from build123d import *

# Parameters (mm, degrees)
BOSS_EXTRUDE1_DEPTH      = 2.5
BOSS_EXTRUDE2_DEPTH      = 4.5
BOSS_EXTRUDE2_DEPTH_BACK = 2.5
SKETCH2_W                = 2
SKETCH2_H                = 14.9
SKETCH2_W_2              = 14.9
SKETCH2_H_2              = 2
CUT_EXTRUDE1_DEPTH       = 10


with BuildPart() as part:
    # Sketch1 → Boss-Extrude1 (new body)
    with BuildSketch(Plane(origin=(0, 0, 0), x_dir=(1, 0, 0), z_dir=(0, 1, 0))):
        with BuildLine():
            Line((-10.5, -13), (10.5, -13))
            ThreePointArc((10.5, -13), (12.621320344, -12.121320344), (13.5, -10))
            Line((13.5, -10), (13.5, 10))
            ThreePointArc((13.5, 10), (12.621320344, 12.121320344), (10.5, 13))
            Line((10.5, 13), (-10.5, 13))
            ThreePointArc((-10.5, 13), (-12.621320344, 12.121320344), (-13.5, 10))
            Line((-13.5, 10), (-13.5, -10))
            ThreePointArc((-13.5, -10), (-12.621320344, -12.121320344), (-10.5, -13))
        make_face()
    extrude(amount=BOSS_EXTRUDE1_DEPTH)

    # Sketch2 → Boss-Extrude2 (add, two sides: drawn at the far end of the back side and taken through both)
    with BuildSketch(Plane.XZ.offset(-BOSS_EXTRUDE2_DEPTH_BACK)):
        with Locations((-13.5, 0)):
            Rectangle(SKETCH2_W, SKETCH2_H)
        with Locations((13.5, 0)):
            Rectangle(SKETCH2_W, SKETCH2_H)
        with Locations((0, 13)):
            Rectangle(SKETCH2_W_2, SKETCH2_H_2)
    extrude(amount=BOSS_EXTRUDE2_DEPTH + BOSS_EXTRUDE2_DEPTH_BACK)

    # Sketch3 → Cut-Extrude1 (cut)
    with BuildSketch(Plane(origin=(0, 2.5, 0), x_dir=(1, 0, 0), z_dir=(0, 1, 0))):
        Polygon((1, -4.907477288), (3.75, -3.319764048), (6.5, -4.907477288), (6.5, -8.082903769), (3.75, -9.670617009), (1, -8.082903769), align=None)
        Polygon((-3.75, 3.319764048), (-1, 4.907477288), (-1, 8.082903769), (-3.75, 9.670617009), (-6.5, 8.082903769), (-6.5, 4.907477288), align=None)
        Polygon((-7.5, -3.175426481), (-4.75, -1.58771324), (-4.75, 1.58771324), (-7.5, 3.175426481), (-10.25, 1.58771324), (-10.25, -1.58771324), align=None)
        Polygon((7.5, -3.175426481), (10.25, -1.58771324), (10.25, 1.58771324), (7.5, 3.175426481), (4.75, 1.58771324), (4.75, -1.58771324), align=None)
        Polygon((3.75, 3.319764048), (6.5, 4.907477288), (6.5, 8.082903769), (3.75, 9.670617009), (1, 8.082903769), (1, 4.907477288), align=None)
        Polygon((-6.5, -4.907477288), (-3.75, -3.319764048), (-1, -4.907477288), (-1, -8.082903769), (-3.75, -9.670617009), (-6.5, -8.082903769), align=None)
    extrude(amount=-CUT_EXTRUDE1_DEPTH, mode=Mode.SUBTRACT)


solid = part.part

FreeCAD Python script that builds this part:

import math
import FreeCAD as App
import Part
import Sketcher
Q = App.Units.Quantity

doc = App.newDocument("Part")
body = doc.addObject("PartDesign::Body", "Body")

# Sketch on XZ plane
sketch1 = body.newObject("Sketcher::SketchObject", "Sketch")
sketch1.AttachmentSupport = (doc.getObject("XZ_Plane"), [""])
sketch1.MapMode = "FlatFace"
sketch1.addGeometry(Part.LineSegment(App.Vector(-10.5, 13, 0), App.Vector(10.5, 13, 0)), False)
sketch1.addGeometry(Part.ArcOfCircle(Part.Circle(App.Vector(10.5, 10, 0), App.Vector(0, 0, 1), 3), math.radians(0), math.radians(90)), False)
sketch1.addGeometry(Part.LineSegment(App.Vector(13.5, 10, 0), App.Vector(13.5, -10, 0)), False)
sketch1.addGeometry(Part.ArcOfCircle(Part.Circle(App.Vector(10.5, -10, 0), App.Vector(0, 0, 1), 3), math.radians(-90), math.radians(0)), False)
sketch1.addGeometry(Part.LineSegment(App.Vector(10.5, -13, 0), App.Vector(-10.5, -13, 0)), False)
sketch1.addGeometry(Part.ArcOfCircle(Part.Circle(App.Vector(-10.5, -10, 0), App.Vector(0, 0, 1), 3), math.radians(180), math.radians(270)), False)
sketch1.addGeometry(Part.LineSegment(App.Vector(-13.5, -10, 0), App.Vector(-13.5, 10, 0)), False)
sketch1.addGeometry(Part.ArcOfCircle(Part.Circle(App.Vector(-10.5, 10, 0), App.Vector(0, 0, 1), 3), math.radians(90), math.radians(180)), False)
sketch1.addConstraint(Sketcher.Constraint("Tangent", 0, 2, 1, 2))
sketch1.addConstraint(Sketcher.Constraint("Tangent", 1, 1, 2, 1))
sketch1.addConstraint(Sketcher.Constraint("Tangent", 2, 2, 3, 2))
sketch1.addConstraint(Sketcher.Constraint("Tangent", 3, 1, 4, 1))
sketch1.addConstraint(Sketcher.Constraint("Tangent", 4, 2, 5, 2))
sketch1.addConstraint(Sketcher.Constraint("Tangent", 5, 1, 6, 1))
sketch1.addConstraint(Sketcher.Constraint("Tangent", 6, 2, 7, 2))
sketch1.addConstraint(Sketcher.Constraint("Tangent", 7, 1, 0, 1))
sketch1.addConstraint(Sketcher.Constraint("Horizontal", 0))
sketch1.addConstraint(Sketcher.Constraint("Vertical", 2))
sketch1.addConstraint(Sketcher.Constraint("Horizontal", 4))
sketch1.addConstraint(Sketcher.Constraint("Vertical", 6))
sketch1.addConstraint(Sketcher.Constraint("Equal", 1, 3))
sketch1.addConstraint(Sketcher.Constraint("Equal", 3, 5))
sketch1.addConstraint(Sketcher.Constraint("Equal", 5, 7))
sketch1.addConstraint(Sketcher.Constraint("Symmetric", 1, 3, 5, 3, -1, 1))
sketch1.addConstraint(Sketcher.Constraint("Radius", 1, Q("3 mm")))
sketch1.addConstraint(Sketcher.Constraint("DistanceX", 0, 1, 0, 2, Q("21 mm")))
sketch1.addConstraint(Sketcher.Constraint("DistanceY", 2, 2, 2, 1, Q("20 mm")))
pad1 = body.newObject("PartDesign::Pad", "Pad")
pad1.Profile = sketch1
pad1.Length = 2.5
pad1.Reversed = True

# Sketch on XZ plane
sketch2 = body.newObject("Sketcher::SketchObject", "Sketch001")
sketch2.AttachmentSupport = (doc.getObject("XZ_Plane"), [""])
sketch2.MapMode = "FlatFace"
sketch2.addGeometry(Part.LineSegment(App.Vector(-14.5, 7.45, 0), App.Vector(-14.5, -7.45, 0)), False)
sketch2.addGeometry(Part.LineSegment(App.Vector(-14.5, -7.45, 0), App.Vector(-12.5, -7.45, 0)), False)
sketch2.addGeometry(Part.LineSegment(App.Vector(-12.5, -7.45, 0), App.Vector(-12.5, 7.45, 0)), False)
sketch2.addGeometry(Part.LineSegment(App.Vector(-12.5, 7.45, 0), App.Vector(-14.5, 7.45, 0)), False)
sketch2.addGeometry(Part.LineSegment(App.Vector(12.5, 7.45, 0), App.Vector(12.5, -7.45, 0)), False)
sketch2.addGeometry(Part.LineSegment(App.Vector(12.5, -7.45, 0), App.Vector(14.5, -7.45, 0)), False)
sketch2.addGeometry(Part.LineSegment(App.Vector(14.5, -7.45, 0), App.Vector(14.5, 7.45, 0)), False)
sketch2.addGeometry(Part.LineSegment(App.Vector(14.5, 7.45, 0), App.Vector(12.5, 7.45, 0)), False)
sketch2.addGeometry(Part.LineSegment(App.Vector(-7.45, 14, 0), App.Vector(-7.45, 12, 0)), False)
sketch2.addGeometry(Part.LineSegment(App.Vector(-7.45, 12, 0), App.Vector(7.45, 12, 0)), False)
sketch2.addGeometry(Part.LineSegment(App.Vector(7.45, 12, 0), App.Vector(7.45, 14, 0)), False)
sketch2.addGeometry(Part.LineSegment(App.Vector(7.45, 14, 0), App.Vector(-7.45, 14, 0)), False)
sketch2.addConstraint(Sketcher.Constraint("Coincident", 0, 2, 1, 1))
sketch2.addConstraint(Sketcher.Constraint("Coincident", 1, 2, 2, 1))
sketch2.addConstraint(Sketcher.Constraint("Coincident", 2, 2, 3, 1))
sketch2.addConstraint(Sketcher.Constraint("Coincident", 3, 2, 0, 1))
sketch2.addConstraint(Sketcher.Constraint("Coincident", 4, 2, 5, 1))
sketch2.addConstraint(Sketcher.Constraint("Coincident", 5, 2, 6, 1))
sketch2.addConstraint(Sketcher.Constraint("Coincident", 6, 2, 7, 1))
sketch2.addConstraint(Sketcher.Constraint("Coincident", 7, 2, 4, 1))
sketch2.addConstraint(Sketcher.Constraint("Coincident", 8, 2, 9, 1))
sketch2.addConstraint(Sketcher.Constraint("Coincident", 9, 2, 10, 1))
sketch2.addConstraint(Sketcher.Constraint("Coincident", 10, 2, 11, 1))
sketch2.addConstraint(Sketcher.Constraint("Coincident", 11, 2, 8, 1))
sketch2.addConstraint(Sketcher.Constraint("Vertical", 0))
sketch2.addConstraint(Sketcher.Constraint("Horizontal", 1))
sketch2.addConstraint(Sketcher.Constraint("Vertical", 2))
sketch2.addConstraint(Sketcher.Constraint("Horizontal", 3))
sketch2.addConstraint(Sketcher.Constraint("Vertical", 4))
sketch2.addConstraint(Sketcher.Constraint("Horizontal", 5))
sketch2.addConstraint(Sketcher.Constraint("Vertical", 6))
sketch2.addConstraint(Sketcher.Constraint("Horizontal", 7))
sketch2.addConstraint(Sketcher.Constraint("Vertical", 8))
sketch2.addConstraint(Sketcher.Constraint("Horizontal", 9))
sketch2.addConstraint(Sketcher.Constraint("Vertical", 10))
sketch2.addConstraint(Sketcher.Constraint("Horizontal", 11))
sketch2.addConstraint(Sketcher.Constraint("Symmetric", 2, 2, 4, 2, -1, 1))
sketch2.addConstraint(Sketcher.Constraint("Symmetric", 0, 2, 6, 2, -1, 1))
sketch2.addConstraint(Sketcher.Constraint("Horizontal", 1, 2, 4, 2))
sketch2.addConstraint(Sketcher.Constraint("Equal", 11, 0))
sketch2.addConstraint(Sketcher.Constraint("Equal", 7, 8))
sketch2.addConstraint(Sketcher.Constraint("DistanceX", 1, 1, 1, 2, Q("2 mm")))
sketch2.addConstraint(Sketcher.Constraint("DistanceX", 9, 1, 9, 2, Q("14.9 mm")))
sketch2.addConstraint(Sketcher.Constraint("DistanceY", -1, 1, 8, 2, Q("12 mm")))
sketch2.addConstraint(Sketcher.Constraint("DistanceX", 1, 2, 4, 2, Q("25 mm")))
sketch2.addConstraint(Sketcher.Constraint("DistanceX", 8, 2, -1, 1, Q("7.45 mm")))
pad2 = body.newObject("PartDesign::Pad", "Pad001")
pad2.Profile = sketch2
pad2.Type = "TwoLengths"
pad2.Length = 4.5
pad2.Length2 = 2.5

# Sketch on XZ plane
sketch3 = body.newObject("Sketcher::SketchObject", "Sketch002")
sketch3.AttachmentSupport = (doc.getObject("XZ_Plane"), [""])
sketch3.MapMode = "FlatFace"
sketch3.AttachmentOffset = App.Placement(App.Vector(0, 0, -2.5), App.Rotation())
sketch3.addGeometry(Part.LineSegment(App.Vector(3.75, 3.319764, 0), App.Vector(1, 4.907477, 0)), False)
sketch3.addGeometry(Part.LineSegment(App.Vector(1, 4.907477, 0), App.Vector(1, 8.082904, 0)), False)
sketch3.addGeometry(Part.LineSegment(App.Vector(1, 8.082904, 0), App.Vector(3.75, 9.670617, 0)), False)
sketch3.addGeometry(Part.LineSegment(App.Vector(3.75, 9.670617, 0), App.Vector(6.5, 8.082904, 0)), False)
sketch3.addGeometry(Part.LineSegment(App.Vector(6.5, 8.082904, 0), App.Vector(6.5, 4.907477, 0)), False)
sketch3.addGeometry(Part.LineSegment(App.Vector(6.5, 4.907477, 0), App.Vector(3.75, 3.319764, 0)), False)
sketch3.addGeometry(Part.LineSegment(App.Vector(-3.75, -3.319764, 0), App.Vector(-1, -4.907477, 0)), False)
sketch3.addGeometry(Part.LineSegment(App.Vector(-1, -4.907477, 0), App.Vector(-1, -8.082904, 0)), False)
sketch3.addGeometry(Part.LineSegment(App.Vector(-1, -8.082904, 0), App.Vector(-3.75, -9.670617, 0)), False)
sketch3.addGeometry(Part.LineSegment(App.Vector(-3.75, -9.670617, 0), App.Vector(-6.5, -8.082904, 0)), False)
sketch3.addGeometry(Part.LineSegment(App.Vector(-6.5, -8.082904, 0), App.Vector(-6.5, -4.907477, 0)), False)
sketch3.addGeometry(Part.LineSegment(App.Vector(-6.5, -4.907477, 0), App.Vector(-3.75, -3.319764, 0)), False)
sketch3.addGeometry(Part.LineSegment(App.Vector(-7.5, 3.175426, 0), App.Vector(-4.75, 1.587713, 0)), False)
sketch3.addGeometry(Part.LineSegment(App.Vector(-4.75, 1.587713, 0), App.Vector(-4.75, -1.587713, 0)), False)
sketch3.addGeometry(Part.LineSegment(App.Vector(-4.75, -1.587713, 0), App.Vector(-7.5, -3.175426, 0)), False)
sketch3.addGeometry(Part.LineSegment(App.Vector(-7.5, -3.175426, 0), App.Vector(-10.25, -1.587713, 0)), False)
sketch3.addGeometry(Part.LineSegment(App.Vector(-10.25, -1.587713, 0), App.Vector(-10.25, 1.587713, 0)), False)
sketch3.addGeometry(Part.LineSegment(App.Vector(-10.25, 1.587713, 0), App.Vector(-7.5, 3.175426, 0)), False)
sketch3.addGeometry(Part.LineSegment(App.Vector(7.5, 3.175426, 0), App.Vector(10.25, 1.587713, 0)), False)
sketch3.addGeometry(Part.LineSegment(App.Vector(10.25, 1.587713, 0), App.Vector(10.25, -1.587713, 0)), False)
sketch3.addGeometry(Part.LineSegment(App.Vector(10.25, -1.587713, 0), App.Vector(7.5, -3.175426, 0)), False)
sketch3.addGeometry(Part.LineSegment(App.Vector(7.5, -3.175426, 0), App.Vector(4.75, -1.587713, 0)), False)
sketch3.addGeometry(Part.LineSegment(App.Vector(4.75, -1.587713, 0), App.Vector(4.75, 1.587713, 0)), False)
sketch3.addGeometry(Part.LineSegment(App.Vector(4.75, 1.587713, 0), App.Vector(7.5, 3.175426, 0)), False)
sketch3.addGeometry(Part.LineSegment(App.Vector(3.75, -3.319764, 0), App.Vector(6.5, -4.907477, 0)), False)
sketch3.addGeometry(Part.LineSegment(App.Vector(6.5, -4.907477, 0), App.Vector(6.5, -8.082904, 0)), False)
sketch3.addGeometry(Part.LineSegment(App.Vector(6.5, -8.082904, 0), App.Vector(3.75, -9.670617, 0)), False)
sketch3.addGeometry(Part.LineSegment(App.Vector(3.75, -9.670617, 0), App.Vector(1, -8.082904, 0)), False)
sketch3.addGeometry(Part.LineSegment(App.Vector(1, -8.082904, 0), App.Vector(1, -4.907477, 0)), False)
sketch3.addGeometry(Part.LineSegment(App.Vector(1, -4.907477, 0), App.Vector(3.75, -3.319764, 0)), False)
sketch3.addGeometry(Part.LineSegment(App.Vector(-3.75, 3.319764, 0), App.Vector(-6.5, 4.907477, 0)), False)
sketch3.addGeometry(Part.LineSegment(App.Vector(-6.5, 4.907477, 0), App.Vector(-6.5, 8.082904, 0)), False)
sketch3.addGeometry(Part.LineSegment(App.Vector(-6.5, 8.082904, 0), App.Vector(-3.75, 9.670617, 0)), False)
sketch3.addGeometry(Part.LineSegment(App.Vector(-3.75, 9.670617, 0), App.Vector(-1, 8.082904, 0)), False)
sketch3.addGeometry(Part.LineSegment(App.Vector(-1, 8.082904, 0), App.Vector(-1, 4.907477, 0)), False)
sketch3.addGeometry(Part.LineSegment(App.Vector(-1, 4.907477, 0), App.Vector(-3.75, 3.319764, 0)), False)
sketch3.addConstraint(Sketcher.Constraint("Coincident", 0, 2, 1, 1))
sketch3.addConstraint(Sketcher.Constraint("Coincident", 1, 2, 2, 1))
sketch3.addConstraint(Sketcher.Constraint("Coincident", 2, 2, 3, 1))
sketch3.addConstraint(Sketcher.Constraint("Coincident", 3, 2, 4, 1))
sketch3.addConstraint(Sketcher.Constraint("Coincident", 4, 2, 5, 1))
sketch3.addConstraint(Sketcher.Constraint("Coincident", 5, 2, 0, 1))
sketch3.addConstraint(Sketcher.Constraint("Coincident", 6, 2, 7, 1))
sketch3.addConstraint(Sketcher.Constraint("Coincident", 7, 2, 8, 1))
sketch3.addConstraint(Sketcher.Constraint("Coincident", 8, 2, 9, 1))
sketch3.addConstraint(Sketcher.Constraint("Coincident", 9, 2, 10, 1))
sketch3.addConstraint(Sketcher.Constraint("Coincident", 10, 2, 11, 1))
sketch3.addConstraint(Sketcher.Constraint("Coincident", 11, 2, 6, 1))
sketch3.addConstraint(Sketcher.Constraint("Coincident", 12, 2, 13, 1))
sketch3.addConstraint(Sketcher.Constraint("Coincident", 13, 2, 14, 1))
sketch3.addConstraint(Sketcher.Constraint("Coincident", 14, 2, 15, 1))
sketch3.addConstraint(Sketcher.Constraint("Coincident", 15, 2, 16, 1))
sketch3.addConstraint(Sketcher.Constraint("Coincident", 16, 2, 17, 1))
sketch3.addConstraint(Sketcher.Constraint("Coincident", 17, 2, 12, 1))
sketch3.addConstraint(Sketcher.Constraint("Coincident", 18, 2, 19, 1))
sketch3.addConstraint(Sketcher.Constraint("Coincident", 19, 2, 20, 1))
sketch3.addConstraint(Sketcher.Constraint("Coincident", 20, 2, 21, 1))
sketch3.addConstraint(Sketcher.Constraint("Coincident", 21, 2, 22, 1))
sketch3.addConstraint(Sketcher.Constraint("Coincident", 22, 2, 23, 1))
sketch3.addConstraint(Sketcher.Constraint("Coincident", 23, 2, 18, 1))
sketch3.addConstraint(Sketcher.Constraint("Coincident", 24, 2, 25, 1))
sketch3.addConstraint(Sketcher.Constraint("Coincident", 25, 2, 26, 1))
sketch3.addConstraint(Sketcher.Constraint("Coincident", 26, 2, 27, 1))
sketch3.addConstraint(Sketcher.Constraint("Coincident", 27, 2, 28, 1))
sketch3.addConstraint(Sketcher.Constraint("Coincident", 28, 2, 29, 1))
sketch3.addConstraint(Sketcher.Constraint("Coincident", 29, 2, 24, 1))
sketch3.addConstraint(Sketcher.Constraint("Coincident", 30, 2, 31, 1))
sketch3.addConstraint(Sketcher.Constraint("Coincident", 31, 2, 32, 1))
sketch3.addConstraint(Sketcher.Constraint("Coincident", 32, 2, 33, 1))
sketch3.addConstraint(Sketcher.Constraint("Coincident", 33, 2, 34, 1))
sketch3.addConstraint(Sketcher.Constraint("Coincident", 34, 2, 35, 1))
sketch3.addConstraint(Sketcher.Constraint("Coincident", 35, 2, 30, 1))
sketch3.addConstraint(Sketcher.Constraint("Vertical", 1))
sketch3.addConstraint(Sketcher.Constraint("Vertical", 4))
sketch3.addConstraint(Sketcher.Constraint("Vertical", 7))
sketch3.addConstraint(Sketcher.Constraint("Vertical", 10))
sketch3.addConstraint(Sketcher.Constraint("Vertical", 13))
sketch3.addConstraint(Sketcher.Constraint("Vertical", 16))
sketch3.addConstraint(Sketcher.Constraint("Vertical", 19))
sketch3.addConstraint(Sketcher.Constraint("Vertical", 22))
sketch3.addConstraint(Sketcher.Constraint("Vertical", 25))
sketch3.addConstraint(Sketcher.Constraint("Vertical", 28))
sketch3.addConstraint(Sketcher.Constraint("Vertical", 31))
sketch3.addConstraint(Sketcher.Constraint("Vertical", 34))
sketch3.addConstraint(Sketcher.Constraint("Symmetric", 0, 2, 6, 2, -1, 1))
sketch3.addConstraint(Sketcher.Constraint("Symmetric", 2, 2, 8, 2, -1, 1))
sketch3.addConstraint(Sketcher.Constraint("Symmetric", 3, 2, 9, 2, -1, 1))
sketch3.addConstraint(Sketcher.Constraint("Symmetric", 5, 2, 11, 2, -1, 1))
sketch3.addConstraint(Sketcher.Constraint("Symmetric", 15, 2, 18, 2, -1, 1))
sketch3.addConstraint(Sketcher.Constraint("Symmetric", 17, 2, 20, 2, -1, 1))
sketch3.addConstraint(Sketcher.Constraint("Symmetric", 12, 2, 21, 2, -1, 1))
sketch3.addConstraint(Sketcher.Constraint("Symmetric", 14, 2, 23, 2, -1, 1))
sketch3.addConstraint(Sketcher.Constraint("Symmetric", 24, 2, 30, 2, -1, 1))
sketch3.addConstraint(Sketcher.Constraint("Symmetric", 26, 2, 32, 2, -1, 1))
sketch3.addConstraint(Sketcher.Constraint("Symmetric", 27, 2, 33, 2, -1, 1))
sketch3.addConstraint(Sketcher.Constraint("Symmetric", 29, 2, 35, 2, -1, 1))
sketch3.addConstraint(Sketcher.Constraint("Symmetric", 14, 2, 20, 2, -2))
sketch3.addConstraint(Sketcher.Constraint("Symmetric", 10, 2, 24, 2, -2))
sketch3.addConstraint(Sketcher.Constraint("Symmetric", 8, 2, 26, 2, -2))
sketch3.addConstraint(Sketcher.Constraint("Symmetric", 7, 2, 27, 2, -2))
sketch3.addConstraint(Sketcher.Constraint("Symmetric", 11, 2, 29, 2, -2))
sketch3.addConstraint(Sketcher.Constraint("Parallel", 0, 3))
sketch3.addConstraint(Sketcher.Constraint("Parallel", 2, 5))
sketch3.addConstraint(Sketcher.Constraint("Parallel", 5, 8))
sketch3.addConstraint(Sketcher.Constraint("Parallel", 8, 11))
sketch3.addConstraint(Sketcher.Constraint("Parallel", 9, 12))
sketch3.addConstraint(Sketcher.Constraint("Parallel", 11, 14))
sketch3.addConstraint(Sketcher.Constraint("Parallel", 12, 15))
sketch3.addConstraint(Sketcher.Constraint("Parallel", 14, 17))
sketch3.addConstraint(Sketcher.Constraint("Parallel", 17, 20))
sketch3.addConstraint(Sketcher.Constraint("Parallel", 20, 23))
sketch3.addConstraint(Sketcher.Constraint("Parallel", 21, 24))
sketch3.addConstraint(Sketcher.Constraint("Parallel", 23, 26))
sketch3.addConstraint(Sketcher.Constraint("Parallel", 26, 29))
sketch3.addConstraint(Sketcher.Constraint("Parallel", 29, 32))
sketch3.addConstraint(Sketcher.Constraint("Parallel", 32, 35))
sketch3.addConstraint(Sketcher.Constraint("Horizontal", 1, 2, 3, 2))
sketch3.addConstraint(Sketcher.Constraint("Horizontal", 0, 2, 4, 2))
sketch3.addConstraint(Sketcher.Constraint("Horizontal", 13, 2, 15, 2))
sketch3.addConstraint(Sketcher.Constraint("Equal", 10, 13))
sketch3.addConstraint(Sketcher.Constraint("Equal", 11, 12))
sketch3.addConstraint(Sketcher.Constraint("Angle", 0, Q("150 deg")))
sketch3.addConstraint(Sketcher.Constraint("DistanceX", -1, 1, 0, 2, Q("1 mm")))
sketch3.addConstraint(Sketcher.Constraint("DistanceX", 12, 2, 11, 2, Q("1 mm")))
sketch3.addConstraint(Sketcher.Constraint("DistanceX", -1, 1, 3, 2, Q("6.5 mm")))
sketch3.addConstraint(Sketcher.Constraint("DistanceY", 1, 1, 1, 2, Q("3.175426 mm")))
sketch3.addConstraint(Sketcher.Constraint("DistanceY", 6, 2, 5, 2, Q("8.227241 mm")))
pocket1 = body.newObject("PartDesign::Pocket", "Pocket")
pocket1.Profile = sketch3
pocket1.Length = 10
pocket1.Reversed = True

doc.recompute()
